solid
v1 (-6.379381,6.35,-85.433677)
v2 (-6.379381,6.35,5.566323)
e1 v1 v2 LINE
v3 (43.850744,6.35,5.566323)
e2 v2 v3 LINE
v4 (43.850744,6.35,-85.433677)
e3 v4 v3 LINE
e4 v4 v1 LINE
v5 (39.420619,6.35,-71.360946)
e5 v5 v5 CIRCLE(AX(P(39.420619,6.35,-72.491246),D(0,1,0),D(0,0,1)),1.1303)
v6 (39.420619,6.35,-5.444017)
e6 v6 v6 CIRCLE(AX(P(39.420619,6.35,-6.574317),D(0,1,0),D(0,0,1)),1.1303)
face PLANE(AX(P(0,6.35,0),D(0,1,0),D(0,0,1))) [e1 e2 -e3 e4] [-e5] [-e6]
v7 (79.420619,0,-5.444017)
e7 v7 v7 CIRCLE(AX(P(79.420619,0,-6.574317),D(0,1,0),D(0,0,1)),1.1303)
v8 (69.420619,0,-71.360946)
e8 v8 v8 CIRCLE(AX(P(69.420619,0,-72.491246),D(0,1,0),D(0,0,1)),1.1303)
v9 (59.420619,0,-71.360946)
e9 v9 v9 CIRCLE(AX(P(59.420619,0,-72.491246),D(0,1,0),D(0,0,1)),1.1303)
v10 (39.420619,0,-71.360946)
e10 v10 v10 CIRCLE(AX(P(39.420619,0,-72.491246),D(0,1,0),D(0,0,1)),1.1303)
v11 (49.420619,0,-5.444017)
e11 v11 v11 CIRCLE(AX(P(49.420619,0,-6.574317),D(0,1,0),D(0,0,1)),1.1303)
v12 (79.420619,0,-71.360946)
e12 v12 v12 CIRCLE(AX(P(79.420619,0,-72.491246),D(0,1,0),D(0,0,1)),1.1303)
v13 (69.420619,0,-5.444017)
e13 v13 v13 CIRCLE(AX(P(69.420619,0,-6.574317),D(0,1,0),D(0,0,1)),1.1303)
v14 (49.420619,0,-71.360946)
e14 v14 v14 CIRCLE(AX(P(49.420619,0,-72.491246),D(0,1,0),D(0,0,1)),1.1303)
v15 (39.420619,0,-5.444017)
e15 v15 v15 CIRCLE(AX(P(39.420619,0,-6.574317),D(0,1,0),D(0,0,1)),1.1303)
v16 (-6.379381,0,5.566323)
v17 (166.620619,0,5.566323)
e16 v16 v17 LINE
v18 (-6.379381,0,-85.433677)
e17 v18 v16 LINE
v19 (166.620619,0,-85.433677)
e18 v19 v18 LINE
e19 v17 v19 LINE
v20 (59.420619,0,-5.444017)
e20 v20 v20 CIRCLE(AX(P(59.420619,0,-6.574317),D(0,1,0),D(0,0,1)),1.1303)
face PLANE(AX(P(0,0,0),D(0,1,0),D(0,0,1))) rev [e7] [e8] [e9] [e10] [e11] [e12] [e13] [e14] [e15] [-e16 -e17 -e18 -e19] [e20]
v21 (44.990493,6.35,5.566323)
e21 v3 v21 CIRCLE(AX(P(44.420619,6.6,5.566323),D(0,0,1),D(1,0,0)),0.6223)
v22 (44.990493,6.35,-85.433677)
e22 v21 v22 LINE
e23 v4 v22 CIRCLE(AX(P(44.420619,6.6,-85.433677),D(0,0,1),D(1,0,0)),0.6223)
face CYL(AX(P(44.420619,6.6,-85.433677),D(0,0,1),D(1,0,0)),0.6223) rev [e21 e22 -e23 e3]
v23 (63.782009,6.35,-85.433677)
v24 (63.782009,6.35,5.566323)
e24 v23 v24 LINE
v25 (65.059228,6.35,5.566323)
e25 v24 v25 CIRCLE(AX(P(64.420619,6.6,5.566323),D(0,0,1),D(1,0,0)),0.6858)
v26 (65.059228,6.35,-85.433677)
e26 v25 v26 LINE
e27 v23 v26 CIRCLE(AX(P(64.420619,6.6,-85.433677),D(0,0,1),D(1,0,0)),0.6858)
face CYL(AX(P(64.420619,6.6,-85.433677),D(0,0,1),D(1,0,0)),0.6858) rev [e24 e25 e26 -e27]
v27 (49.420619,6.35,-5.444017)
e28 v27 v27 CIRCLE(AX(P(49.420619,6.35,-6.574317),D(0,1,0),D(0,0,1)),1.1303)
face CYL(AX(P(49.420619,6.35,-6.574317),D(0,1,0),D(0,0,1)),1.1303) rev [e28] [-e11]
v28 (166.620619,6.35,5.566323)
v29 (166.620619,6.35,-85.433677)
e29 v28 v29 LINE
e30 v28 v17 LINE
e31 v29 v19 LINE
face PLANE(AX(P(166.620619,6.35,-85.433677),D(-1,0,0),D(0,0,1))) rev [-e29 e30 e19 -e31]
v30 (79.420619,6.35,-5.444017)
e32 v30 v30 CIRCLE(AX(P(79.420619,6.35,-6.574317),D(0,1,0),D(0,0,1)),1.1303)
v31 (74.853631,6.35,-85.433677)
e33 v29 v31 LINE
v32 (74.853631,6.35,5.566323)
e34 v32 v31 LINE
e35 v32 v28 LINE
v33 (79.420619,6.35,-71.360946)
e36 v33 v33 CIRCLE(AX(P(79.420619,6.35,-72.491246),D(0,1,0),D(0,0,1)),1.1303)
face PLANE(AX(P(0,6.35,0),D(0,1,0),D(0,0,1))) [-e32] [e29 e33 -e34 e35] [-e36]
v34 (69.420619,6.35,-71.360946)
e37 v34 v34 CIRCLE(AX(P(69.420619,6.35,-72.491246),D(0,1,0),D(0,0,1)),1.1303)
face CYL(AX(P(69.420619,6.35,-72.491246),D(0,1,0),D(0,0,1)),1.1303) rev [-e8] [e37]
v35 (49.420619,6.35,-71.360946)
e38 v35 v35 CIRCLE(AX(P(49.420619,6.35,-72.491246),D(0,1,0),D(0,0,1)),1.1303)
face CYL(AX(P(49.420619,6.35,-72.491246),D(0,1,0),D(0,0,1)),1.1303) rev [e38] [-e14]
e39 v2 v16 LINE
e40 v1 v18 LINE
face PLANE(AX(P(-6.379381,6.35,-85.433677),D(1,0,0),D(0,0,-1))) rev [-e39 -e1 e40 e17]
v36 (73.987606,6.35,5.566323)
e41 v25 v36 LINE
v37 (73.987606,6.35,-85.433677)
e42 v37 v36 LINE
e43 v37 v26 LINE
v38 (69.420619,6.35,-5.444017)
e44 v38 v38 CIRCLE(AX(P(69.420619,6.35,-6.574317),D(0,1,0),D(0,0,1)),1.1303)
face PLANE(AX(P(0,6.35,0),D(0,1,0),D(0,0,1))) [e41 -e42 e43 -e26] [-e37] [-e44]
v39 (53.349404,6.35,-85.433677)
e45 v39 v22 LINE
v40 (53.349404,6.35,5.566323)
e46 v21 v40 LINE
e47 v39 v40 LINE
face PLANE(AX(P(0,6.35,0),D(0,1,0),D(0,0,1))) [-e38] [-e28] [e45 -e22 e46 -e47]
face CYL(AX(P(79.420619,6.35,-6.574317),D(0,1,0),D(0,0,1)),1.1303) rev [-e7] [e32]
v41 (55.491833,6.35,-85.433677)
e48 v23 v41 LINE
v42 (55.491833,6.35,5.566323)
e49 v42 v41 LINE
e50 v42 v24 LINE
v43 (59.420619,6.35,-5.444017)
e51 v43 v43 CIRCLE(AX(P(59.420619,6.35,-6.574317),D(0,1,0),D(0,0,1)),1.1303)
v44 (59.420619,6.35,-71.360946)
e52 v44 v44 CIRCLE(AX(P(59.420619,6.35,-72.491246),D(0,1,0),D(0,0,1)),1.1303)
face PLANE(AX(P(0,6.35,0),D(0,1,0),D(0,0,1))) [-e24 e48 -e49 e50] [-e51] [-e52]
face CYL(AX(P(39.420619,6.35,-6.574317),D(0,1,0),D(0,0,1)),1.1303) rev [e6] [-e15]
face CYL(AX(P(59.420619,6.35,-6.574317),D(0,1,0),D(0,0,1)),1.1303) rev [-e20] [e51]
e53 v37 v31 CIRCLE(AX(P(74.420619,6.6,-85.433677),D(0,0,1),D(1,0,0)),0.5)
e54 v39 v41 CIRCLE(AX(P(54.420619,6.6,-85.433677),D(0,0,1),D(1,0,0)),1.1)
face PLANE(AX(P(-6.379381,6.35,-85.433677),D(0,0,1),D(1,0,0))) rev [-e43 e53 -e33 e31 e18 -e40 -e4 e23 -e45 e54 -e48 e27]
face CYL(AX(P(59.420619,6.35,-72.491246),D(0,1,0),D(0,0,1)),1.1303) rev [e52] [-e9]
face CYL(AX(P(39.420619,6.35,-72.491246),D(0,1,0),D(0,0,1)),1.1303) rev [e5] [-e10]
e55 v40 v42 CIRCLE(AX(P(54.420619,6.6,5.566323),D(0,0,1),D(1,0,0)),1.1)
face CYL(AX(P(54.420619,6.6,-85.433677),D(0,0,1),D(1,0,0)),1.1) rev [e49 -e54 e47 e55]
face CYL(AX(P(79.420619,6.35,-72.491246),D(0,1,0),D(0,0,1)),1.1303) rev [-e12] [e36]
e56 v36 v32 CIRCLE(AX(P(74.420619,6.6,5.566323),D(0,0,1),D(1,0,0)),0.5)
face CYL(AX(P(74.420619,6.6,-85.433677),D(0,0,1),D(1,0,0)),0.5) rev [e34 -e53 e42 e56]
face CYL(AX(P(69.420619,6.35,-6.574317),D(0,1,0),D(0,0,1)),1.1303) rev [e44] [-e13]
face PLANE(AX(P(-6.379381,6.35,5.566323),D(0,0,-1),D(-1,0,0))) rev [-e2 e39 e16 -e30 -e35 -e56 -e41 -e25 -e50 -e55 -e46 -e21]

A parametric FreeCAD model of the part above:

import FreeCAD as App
import Part
import Sketcher

V = App.Vector


def add_polygon(sketch, points):
    """Adds a closed chain of lines whose ends are joined by coincident constraints."""
    first, n = sketch.GeometryCount, len(points)
    for a, b in zip(points, points[1:] + points[:1]):
        sketch.addGeometry(Part.LineSegment(App.Vector(*a, 0), App.Vector(*b, 0)), False)
    for i in range(n):
        sketch.addConstraint(Sketcher.Constraint("Coincident", first + i, 2, first + (i + 1) % n, 1))

doc = App.newDocument("Part")
params = doc.addObject("Spreadsheet::Sheet", "Params")
for row, (alias, value) in enumerate([
    ("sketch1_width", "173 mm"),
    ("sketch1_height", "91 mm"),
    ("pad1_length", "6.35 mm"),
    ("sketch2_diameter", "1 mm"),
    ("sketch2_diameter2", "2.2 mm"),
    ("hole_diameter", "2.2606 mm"),
], start=1):
    params.set(f"A{row}", alias)
    params.set(f"B{row}", "=" + value)
    params.setAlias(f"B{row}", alias)

body = doc.addObject("PartDesign::Body", "Body")

sketch1 = doc.addObject("Sketcher::SketchObject", "Sketch")
body.addObject(sketch1)
sketch1.AttachmentSupport = (doc.XZ_Plane, [""])
sketch1.MapMode = "FlatFace"
add_polygon(sketch1, [(-6, -85), (-6, 6), (167, 6), (167, -85)])
sketch1.addConstraint([
    Sketcher.Constraint("Vertical", 0),
    Sketcher.Constraint("Horizontal", 1),
    Sketcher.Constraint("Vertical", 2),
    Sketcher.Constraint("Horizontal", 3),
    Sketcher.Constraint("DistanceX", 1, 1, 1, 2, 173.0),
    Sketcher.Constraint("DistanceY", 0, 1, 0, 2, 91.0),
    Sketcher.Constraint("DistanceX", 0, 2, -1, 1, 6.379381),
    Sketcher.Constraint("DistanceY", -1, 1, 0, 2, 5.566323),
])
sketch1.setExpression("Constraints[8]", "Params.sketch1_width")
sketch1.setExpression("Constraints[9]", "Params.sketch1_height")
pad1 = doc.addObject("PartDesign::Pad", "Pad")
body.addObject(pad1)
pad1.Profile = sketch1
pad1.setExpression("Length", "Params.pad1_length")
pad1.Reversed = True

sketch2 = doc.addObject("Sketcher::SketchObject", "Sketch001")
body.addObject(sketch2)
sketch2.AttachmentSupport = (doc.XY_Plane, [""])
sketch2.MapMode = "FlatFace"
sketch2.AttachmentOffset = App.Placement(V(0, 0, 5.566323), App.Rotation())
sketch2.addGeometry([
    Part.Circle(V(44.4, 6.6, 0), V(0, 0, 1), 0.6),
    Part.Circle(V(54.4, 6.6, 0), V(0, 0, 1), 1.1),
    Part.Circle(V(64.4, 6.6, 0), V(0, 0, 1), 0.7),
    Part.Circle(V(74.4, 6.6, 0), V(0, 0, 1), 0.5),
], False)
sketch2.addConstraint([
    Sketcher.Constraint("Horizontal", 0, 3, 1, 3),
    Sketcher.Constraint("Horizontal", 1, 3, 2, 3),
    Sketcher.Constraint("Horizontal", 2, 3, 3, 3),
    Sketcher.Constraint("Diameter", 3, 1.0),
    Sketcher.Constraint("Diameter", 1, 2.2),
    Sketcher.Constraint("DistanceX", 0, 3, 1, 3, 10.0),
    Sketcher.Constraint("DistanceX", 1, 3, 2, 3, 10.0),
    Sketcher.Constraint("DistanceX", 2, 3, 3, 3, 10.0),
    Sketcher.Constraint("Diameter", 0, 1.2446),
    Sketcher.Constraint("Diameter", 2, 1.3716),
    Sketcher.Constraint("DistanceY", -1, 1, 0, 3, 6.6),
    Sketcher.Constraint("DistanceX", -1, 1, 0, 3, 44.420619),
])
sketch2.setExpression("Constraints[3]", "Params.sketch2_diameter")
sketch2.setExpression("Constraints[4]", "Params.sketch2_diameter2")
pocket1 = doc.addObject("PartDesign::Pocket", "Pocket")
body.addObject(pocket1)
pocket1.Profile = sketch2
pocket1.Type = "ThroughAll"

sketch3 = doc.addObject("Sketcher::SketchObject", "Sketch002")
body.addObject(sketch3)
sketch3.AttachmentSupport = (doc.XZ_Plane, [""])
sketch3.MapMode = "FlatFace"
sketch3.AttachmentOffset = App.Placement(V(0, 0, -6.35), App.Rotation())
sketch3.addGeometry([
    Part.Circle(V(39.4, -72.5, 0), V(0, 0, 1), 1.1),
    Part.Circle(V(59.4, -72.5, 0), V(0, 0, 1), 1.1),
    Part.Circle(V(49.4, -72.5, 0), V(0, 0, 1), 1.1),
    Part.Circle(V(49.4, -6.6, 0), V(0, 0, 1), 1.1),
    Part.Circle(V(39.4, -6.6, 0), V(0, 0, 1), 1.1),
    Part.Circle(V(59.4, -6.6, 0), V(0, 0, 1), 1.1),
    Part.Circle(V(69.4, -72.5, 0), V(0, 0, 1), 1.1),
    Part.Circle(V(79.4, -72.5, 0), V(0, 0, 1), 1.1),
    Part.Circle(V(69.4, -6.6, 0), V(0, 0, 1), 1.1),
    Part.Circle(V(79.4, -6.6, 0), V(0, 0, 1), 1.1),
], False)
sketch3.addConstraint([
    Sketcher.Constraint("Equal", 0, 1),
    Sketcher.Constraint("Equal", 1, 2),
    Sketcher.Constraint("Equal", 2, 3),
    Sketcher.Constraint("Equal", 3, 4),
    Sketcher.Constraint("Equal", 4, 5),
    Sketcher.Constraint("Equal", 5, 6),
    Sketcher.Constraint("Equal", 6, 7),
    Sketcher.Constraint("Equal", 7, 8),
    Sketcher.Constraint("Equal", 8, 9),
    Sketcher.Constraint("Horizontal", 0, 3, 1, 3),
    Sketcher.Constraint("Horizontal", 1, 3, 2, 3),
    Sketcher.Constraint("Horizontal", 3, 3, 4, 3),
    Sketcher.Constraint("Horizontal", 4, 3, 5, 3),
    Sketcher.Constraint("Horizontal", 2, 3, 6, 3),
    Sketcher.Constraint("Horizontal", 6, 3, 7, 3),
    Sketcher.Constraint("Horizontal", 5, 3, 8, 3),
    Sketcher.Constraint("Horizontal", 8, 3, 9, 3),
    Sketcher.Constraint("Vertical", 2, 3, 3, 3),
    Sketcher.Constraint("Vertical", 0, 3, 4, 3),
    Sketcher.Constraint("Vertical", 1, 3, 5, 3),
    Sketcher.Constraint("Vertical", 6, 3, 8, 3),
    Sketcher.Constraint("Vertical", 7, 3, 9, 3),
    Sketcher.Constraint("DistanceX", 0, 3, 1, 3, 20.0),
    Sketcher.Constraint("DistanceX", 0, 3, 2, 3, 10.0),
    Sketcher.Constraint("DistanceX", 1, 3, 6, 3, 10.0),
    Sketcher.Constraint("DistanceX", 6, 3, 7, 3, 10.0),
    Sketcher.Constraint("Diameter", 0, 2.2606),
    Sketcher.Constraint("DistanceX", -1, 1, 0, 3, 39.420619),
    Sketcher.Constraint("DistanceY", 2, 3, 3, 3, 65.916929),
    Sketcher.Constraint("DistanceY", 0, 3, -1, 1, 72.491246),
])
doc.recompute()
hole = doc.addObject("PartDesign::Hole", "Hole")
body.addObject(hole)
hole.Profile = sketch3
hole.ThreadType = "None"
hole.setExpression("Diameter", "Params.hole_diameter")
hole.DepthType = "ThroughAll"
hole.Reversed = True

doc.recompute()
